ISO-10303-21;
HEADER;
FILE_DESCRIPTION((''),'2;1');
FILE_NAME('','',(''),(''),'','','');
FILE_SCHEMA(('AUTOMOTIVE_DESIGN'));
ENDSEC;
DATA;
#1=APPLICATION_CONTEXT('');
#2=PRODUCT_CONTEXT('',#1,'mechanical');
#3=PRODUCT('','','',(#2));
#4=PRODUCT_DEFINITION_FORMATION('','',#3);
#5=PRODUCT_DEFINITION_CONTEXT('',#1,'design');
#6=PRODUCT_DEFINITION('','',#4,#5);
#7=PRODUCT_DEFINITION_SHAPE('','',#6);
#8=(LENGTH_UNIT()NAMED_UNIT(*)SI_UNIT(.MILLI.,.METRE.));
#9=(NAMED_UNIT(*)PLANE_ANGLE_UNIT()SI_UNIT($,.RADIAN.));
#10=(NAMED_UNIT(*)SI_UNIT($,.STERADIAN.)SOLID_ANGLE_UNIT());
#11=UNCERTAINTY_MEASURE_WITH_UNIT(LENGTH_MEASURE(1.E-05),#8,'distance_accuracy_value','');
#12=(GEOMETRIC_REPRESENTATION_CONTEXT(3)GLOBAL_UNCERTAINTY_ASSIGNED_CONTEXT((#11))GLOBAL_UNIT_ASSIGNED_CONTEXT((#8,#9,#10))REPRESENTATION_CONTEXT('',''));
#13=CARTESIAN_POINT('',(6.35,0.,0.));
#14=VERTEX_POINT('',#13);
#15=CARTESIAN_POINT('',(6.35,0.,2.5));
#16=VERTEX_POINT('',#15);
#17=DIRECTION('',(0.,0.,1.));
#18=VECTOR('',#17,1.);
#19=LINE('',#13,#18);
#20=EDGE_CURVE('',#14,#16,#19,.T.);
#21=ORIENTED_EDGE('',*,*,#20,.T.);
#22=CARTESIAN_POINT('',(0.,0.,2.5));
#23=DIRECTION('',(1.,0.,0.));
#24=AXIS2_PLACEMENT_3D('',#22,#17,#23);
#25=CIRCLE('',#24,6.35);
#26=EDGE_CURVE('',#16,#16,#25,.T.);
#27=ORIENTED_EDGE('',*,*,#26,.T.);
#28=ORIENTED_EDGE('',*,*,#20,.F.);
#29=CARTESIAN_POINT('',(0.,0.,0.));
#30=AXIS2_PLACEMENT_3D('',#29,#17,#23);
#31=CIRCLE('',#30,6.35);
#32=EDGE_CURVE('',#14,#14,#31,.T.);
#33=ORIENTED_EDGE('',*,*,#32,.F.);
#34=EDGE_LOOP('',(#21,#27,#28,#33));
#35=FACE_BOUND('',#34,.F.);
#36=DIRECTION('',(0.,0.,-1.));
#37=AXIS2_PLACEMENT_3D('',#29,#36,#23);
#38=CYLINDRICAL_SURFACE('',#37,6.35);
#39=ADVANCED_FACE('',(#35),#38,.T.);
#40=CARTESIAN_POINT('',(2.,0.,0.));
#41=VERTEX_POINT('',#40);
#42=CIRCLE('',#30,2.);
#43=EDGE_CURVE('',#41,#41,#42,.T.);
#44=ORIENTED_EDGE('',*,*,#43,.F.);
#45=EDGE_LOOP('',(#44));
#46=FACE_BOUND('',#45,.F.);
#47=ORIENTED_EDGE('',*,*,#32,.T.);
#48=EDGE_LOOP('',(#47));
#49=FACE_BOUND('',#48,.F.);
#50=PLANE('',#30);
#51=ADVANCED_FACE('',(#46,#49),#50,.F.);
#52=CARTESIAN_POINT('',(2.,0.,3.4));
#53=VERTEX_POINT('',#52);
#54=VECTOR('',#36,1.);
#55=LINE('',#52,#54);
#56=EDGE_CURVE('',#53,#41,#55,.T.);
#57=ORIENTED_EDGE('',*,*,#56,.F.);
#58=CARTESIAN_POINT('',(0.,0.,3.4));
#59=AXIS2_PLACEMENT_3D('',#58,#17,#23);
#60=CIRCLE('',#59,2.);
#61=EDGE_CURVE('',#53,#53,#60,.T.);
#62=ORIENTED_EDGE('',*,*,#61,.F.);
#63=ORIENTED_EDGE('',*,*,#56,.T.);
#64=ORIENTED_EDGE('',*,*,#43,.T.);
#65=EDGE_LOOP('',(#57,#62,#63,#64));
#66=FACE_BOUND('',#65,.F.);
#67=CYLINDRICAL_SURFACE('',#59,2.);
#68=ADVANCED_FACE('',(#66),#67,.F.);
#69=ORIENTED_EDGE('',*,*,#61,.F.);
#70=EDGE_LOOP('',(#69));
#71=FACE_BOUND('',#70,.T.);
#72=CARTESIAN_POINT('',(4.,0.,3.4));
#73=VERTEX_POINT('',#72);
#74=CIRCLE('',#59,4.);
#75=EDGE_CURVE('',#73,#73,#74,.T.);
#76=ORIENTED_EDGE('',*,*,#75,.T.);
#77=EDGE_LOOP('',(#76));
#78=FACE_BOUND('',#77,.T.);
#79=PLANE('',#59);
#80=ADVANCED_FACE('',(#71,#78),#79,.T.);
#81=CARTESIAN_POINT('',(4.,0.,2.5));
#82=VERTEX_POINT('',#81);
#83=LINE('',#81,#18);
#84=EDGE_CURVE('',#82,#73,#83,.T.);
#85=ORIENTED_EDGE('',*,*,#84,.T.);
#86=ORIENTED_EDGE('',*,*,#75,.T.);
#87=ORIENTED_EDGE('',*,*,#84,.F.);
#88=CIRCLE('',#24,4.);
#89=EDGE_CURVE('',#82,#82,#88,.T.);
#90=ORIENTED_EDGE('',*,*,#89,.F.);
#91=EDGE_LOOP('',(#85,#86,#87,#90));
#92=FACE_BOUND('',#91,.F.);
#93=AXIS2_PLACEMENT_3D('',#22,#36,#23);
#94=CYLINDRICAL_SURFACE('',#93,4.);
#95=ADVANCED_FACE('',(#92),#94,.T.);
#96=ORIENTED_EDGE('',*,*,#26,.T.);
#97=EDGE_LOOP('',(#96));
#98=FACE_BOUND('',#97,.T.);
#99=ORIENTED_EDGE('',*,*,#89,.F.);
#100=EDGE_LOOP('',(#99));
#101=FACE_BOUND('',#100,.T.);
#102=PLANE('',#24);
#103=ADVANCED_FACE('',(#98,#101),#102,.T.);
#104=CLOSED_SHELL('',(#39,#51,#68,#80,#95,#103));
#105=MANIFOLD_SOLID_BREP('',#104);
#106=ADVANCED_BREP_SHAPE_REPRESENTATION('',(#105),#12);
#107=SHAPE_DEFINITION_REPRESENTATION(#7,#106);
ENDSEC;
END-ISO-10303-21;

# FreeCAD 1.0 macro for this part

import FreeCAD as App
import Part
import Sketcher

doc = App.newDocument("Part")
body = doc.addObject("PartDesign::Body", "Body")

# Sketch on XY plane
sketch1 = body.newObject("Sketcher::SketchObject", "Sketch")
sketch1.AttachmentSupport = (doc.getObject("XY_Plane"), [""])
sketch1.MapMode = "FlatFace"
sketch1.addGeometry(Part.Circle(App.Vector(0, 0, 0), App.Vector(0, 0, 1), 6.35), False)
sketch1.addConstraint(Sketcher.Constraint("Coincident", 0, 3, -1, 1))
sketch1.addConstraint(Sketcher.Constraint("Diameter", 0, 12.7))
pad1 = body.newObject("PartDesign::Pad", "Pad")
pad1.Profile = sketch1
pad1.Length = 2.5

# Sketch on XY plane
sketch2 = body.newObject("Sketcher::SketchObject", "Sketch001")
sketch2.AttachmentSupport = (doc.getObject("XY_Plane"), [""])
sketch2.MapMode = "FlatFace"
sketch2.AttachmentOffset = App.Placement(App.Vector(0, 0, 2.5), App.Rotation())
sketch2.addGeometry(Part.Circle(App.Vector(0, 0, 0), App.Vector(0, 0, 1), 4), False)
sketch2.addConstraint(Sketcher.Constraint("Coincident", 0, 3, -1, 1))
sketch2.addConstraint(Sketcher.Constraint("Diameter", 0, 8.0))
pad2 = body.newObject("PartDesign::Pad", "Pad001")
pad2.Profile = sketch2
pad2.Length = 0.9

# Sketch on XY plane
sketch3 = body.newObject("Sketcher::SketchObject", "Sketch002")
sketch3.AttachmentSupport = (doc.getObject("XY_Plane"), [""])
sketch3.MapMode = "FlatFace"
sketch3.AttachmentOffset = App.Placement(App.Vector(0, 0, 3.4), App.Rotation())
sketch3.addGeometry(Part.Circle(App.Vector(0, 0, 0), App.Vector(0, 0, 1), 2), False)
sketch3.addConstraint(Sketcher.Constraint("Coincident", 0, 3, -1, 1))
sketch3.addConstraint(Sketcher.Constraint("Diameter", 0, 4.0))
pocket1 = body.newObject("PartDesign::Pocket", "Pocket")
pocket1.Profile = sketch3
pocket1.Type = "ThroughAll"

doc.recompute()
